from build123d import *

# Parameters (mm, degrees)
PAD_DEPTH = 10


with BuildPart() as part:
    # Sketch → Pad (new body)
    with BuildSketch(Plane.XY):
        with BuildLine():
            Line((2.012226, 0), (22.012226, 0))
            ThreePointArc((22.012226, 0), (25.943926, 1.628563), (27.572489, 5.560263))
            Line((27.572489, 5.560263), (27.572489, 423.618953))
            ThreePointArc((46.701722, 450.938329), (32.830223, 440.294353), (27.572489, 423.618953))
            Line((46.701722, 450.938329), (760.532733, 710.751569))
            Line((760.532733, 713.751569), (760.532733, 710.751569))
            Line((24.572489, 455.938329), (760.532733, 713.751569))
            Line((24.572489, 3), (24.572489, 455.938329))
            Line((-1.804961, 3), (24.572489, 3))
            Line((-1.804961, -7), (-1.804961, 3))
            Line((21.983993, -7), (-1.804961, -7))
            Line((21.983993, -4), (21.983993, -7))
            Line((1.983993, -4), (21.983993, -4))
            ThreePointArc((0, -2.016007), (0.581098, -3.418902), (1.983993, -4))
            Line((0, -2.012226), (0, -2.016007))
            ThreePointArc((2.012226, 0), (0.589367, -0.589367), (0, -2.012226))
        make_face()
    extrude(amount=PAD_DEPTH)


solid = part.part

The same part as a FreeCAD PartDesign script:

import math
import FreeCAD as App
import Part
import Sketcher
Q = App.Units.Quantity

doc = App.newDocument("Part")
body = doc.addObject("PartDesign::Body", "Body")

# Sketch on XY plane
sketch1 = doc.addObject("Sketcher::SketchObject", "Sketch")
body.addObject(sketch1)
sketch1.AttachmentSupport = (doc.XY_Plane, [""])
sketch1.MapMode = "FlatFace"
sketch1.addGeometry(Part.LineSegment(App.Vector(2.0122, 0, 0), App.Vector(22.0122, 0, 0)), False)
sketch1.addGeometry(Part.ArcOfCircle(Part.Circle(App.Vector(22.0122, 5.5603, 0), App.Vector(0, 0, 1), 5.5603), math.radians(-90), math.radians(0)), False)
sketch1.addGeometry(Part.LineSegment(App.Vector(27.5725, 5.5603, 0), App.Vector(27.5725, 423.619, 0)), False)
sketch1.addGeometry(Part.ArcOfCircle(Part.Circle(App.Vector(56.6452, 423.619, 0), App.Vector(0, 0, 1), 29.0727), math.radians(110), math.radians(180)), False)
sketch1.addGeometry(Part.LineSegment(App.Vector(46.7017, 450.9383, 0), App.Vector(760.5327, 710.7516, 0)), False)
sketch1.addGeometry(Part.LineSegment(App.Vector(760.5327, 710.7516, 0), App.Vector(760.5327, 713.7516, 0)), False)
sketch1.addGeometry(Part.LineSegment(App.Vector(760.5327, 713.7516, 0), App.Vector(24.5725, 455.9383, 0)), False)
sketch1.addGeometry(Part.LineSegment(App.Vector(24.5725, 455.9383, 0), App.Vector(24.5725, 3, 0)), False)
sketch1.addGeometry(Part.LineSegment(App.Vector(24.5725, 3, 0), App.Vector(-1.805, 3, 0)), False)
sketch1.addGeometry(Part.LineSegment(App.Vector(-1.805, 3, 0), App.Vector(-1.805, -7, 0)), False)
sketch1.addGeometry(Part.LineSegment(App.Vector(-1.805, -7, 0), App.Vector(21.984, -7, 0)), False)
sketch1.addGeometry(Part.LineSegment(App.Vector(21.984, -7, 0), App.Vector(21.984, -4, 0)), False)
sketch1.addGeometry(Part.LineSegment(App.Vector(21.984, -4, 0), App.Vector(1.984, -4, 0)), False)
sketch1.addGeometry(Part.ArcOfCircle(Part.Circle(App.Vector(1.984, -2.016, 0), App.Vector(0, 0, 1), 1.984), math.radians(180), math.radians(270)), False)
sketch1.addGeometry(Part.LineSegment(App.Vector(0, -2.016, 0), App.Vector(0, -2.0122, 0)), False)
sketch1.addGeometry(Part.ArcOfCircle(Part.Circle(App.Vector(2.0122, -2.0122, 0), App.Vector(0, 0, 1), 2.0122), math.radians(90), math.radians(180)), False)
sketch1.addConstraint(Sketcher.Constraint("Tangent", 0, 2, 1, 1))
sketch1.addConstraint(Sketcher.Constraint("Tangent", 1, 2, 2, 1))
sketch1.addConstraint(Sketcher.Constraint("Tangent", 2, 2, 3, 2))
sketch1.addConstraint(Sketcher.Constraint("Tangent", 3, 1, 4, 1))
sketch1.addConstraint(Sketcher.Constraint("Coincident", 4, 2, 5, 1))
sketch1.addConstraint(Sketcher.Constraint("Coincident", 5, 2, 6, 1))
sketch1.addConstraint(Sketcher.Constraint("Coincident", 6, 2, 7, 1))
sketch1.addConstraint(Sketcher.Constraint("Coincident", 7, 2, 8, 1))
sketch1.addConstraint(Sketcher.Constraint("Coincident", 8, 2, 9, 1))
sketch1.addConstraint(Sketcher.Constraint("Coincident", 9, 2, 10, 1))
sketch1.addConstraint(Sketcher.Constraint("Coincident", 10, 2, 11, 1))
sketch1.addConstraint(Sketcher.Constraint("Coincident", 11, 2, 12, 1))
sketch1.addConstraint(Sketcher.Constraint("Tangent", 12, 2, 13, 2))
sketch1.addConstraint(Sketcher.Constraint("Tangent", 13, 1, 14, 1))
sketch1.addConstraint(Sketcher.Constraint("Tangent", 14, 2, 15, 2))
sketch1.addConstraint(Sketcher.Constraint("Tangent", 15, 1, 0, 1))
sketch1.addConstraint(Sketcher.Constraint("Horizontal", 0))
sketch1.addConstraint(Sketcher.Constraint("Vertical", 2))
sketch1.addConstraint(Sketcher.Constraint("Vertical", 5))
sketch1.addConstraint(Sketcher.Constraint("Vertical", 7))
sketch1.addConstraint(Sketcher.Constraint("Horizontal", 8))
sketch1.addConstraint(Sketcher.Constraint("Vertical", 9))
sketch1.addConstraint(Sketcher.Constraint("Horizontal", 10))
sketch1.addConstraint(Sketcher.Constraint("Vertical", 11))
sketch1.addConstraint(Sketcher.Constraint("Horizontal", 12))
sketch1.addConstraint(Sketcher.Constraint("PointOnObject", 0, 2, -1))
sketch1.addConstraint(Sketcher.Constraint("PointOnObject", 13, 1, -2))
sketch1.addConstraint(Sketcher.Constraint("Horizontal", 15, 3, 14, 2))
sketch1.addConstraint(Sketcher.Constraint("Equal", 0, 12))
sketch1.addConstraint(Sketcher.Constraint("Equal", 5, 11))
sketch1.addConstraint(Sketcher.Constraint("DistanceX", 0, 1, 0, 2, Q("20 mm")))
sketch1.addConstraint(Sketcher.Constraint("DistanceY", 5, 1, 5, 2, Q("3 mm")))
sketch1.addConstraint(Sketcher.Constraint("DistanceY", 9, 2, 9, 1, Q("10 mm")))
sketch1.addConstraint(Sketcher.Constraint("Angle", 4, Q("20 deg")))
sketch1.addConstraint(Sketcher.Constraint("DistanceY", -1, 1, 7, 2, Q("3 mm")))
sketch1.addConstraint(Sketcher.Constraint("DistanceY", 3, 1, 6, 2, Q("5 mm")))
sketch1.addConstraint(Sketcher.Constraint("DistanceX", 6, 2, 2, 2, Q("3 mm")))
sketch1.addConstraint(Sketcher.Constraint("Radius", 1, Q("5.560262 mm")))
sketch1.addConstraint(Sketcher.Constraint("Radius", 3, Q("29.072675 mm")))
sketch1.addConstraint(Sketcher.Constraint("Radius", 13, Q("1.983993 mm")))
sketch1.addConstraint(Sketcher.Constraint("Radius", 15, Q("2.012225 mm")))
sketch1.addConstraint(Sketcher.Constraint("DistanceX", 8, 2, 8, 1, Q("26.37745 mm")))
sketch1.addConstraint(Sketcher.Constraint("DistanceY", 2, 1, 2, 2, Q("418.05869 mm")))
sketch1.addConstraint(Sketcher.Constraint("Distance", 6, Q("779.810969 mm")))
pad1 = doc.addObject("PartDesign::Pad", "Pad")
body.addObject(pad1)
pad1.Profile = sketch1
pad1.Length = 10

doc.recompute()
